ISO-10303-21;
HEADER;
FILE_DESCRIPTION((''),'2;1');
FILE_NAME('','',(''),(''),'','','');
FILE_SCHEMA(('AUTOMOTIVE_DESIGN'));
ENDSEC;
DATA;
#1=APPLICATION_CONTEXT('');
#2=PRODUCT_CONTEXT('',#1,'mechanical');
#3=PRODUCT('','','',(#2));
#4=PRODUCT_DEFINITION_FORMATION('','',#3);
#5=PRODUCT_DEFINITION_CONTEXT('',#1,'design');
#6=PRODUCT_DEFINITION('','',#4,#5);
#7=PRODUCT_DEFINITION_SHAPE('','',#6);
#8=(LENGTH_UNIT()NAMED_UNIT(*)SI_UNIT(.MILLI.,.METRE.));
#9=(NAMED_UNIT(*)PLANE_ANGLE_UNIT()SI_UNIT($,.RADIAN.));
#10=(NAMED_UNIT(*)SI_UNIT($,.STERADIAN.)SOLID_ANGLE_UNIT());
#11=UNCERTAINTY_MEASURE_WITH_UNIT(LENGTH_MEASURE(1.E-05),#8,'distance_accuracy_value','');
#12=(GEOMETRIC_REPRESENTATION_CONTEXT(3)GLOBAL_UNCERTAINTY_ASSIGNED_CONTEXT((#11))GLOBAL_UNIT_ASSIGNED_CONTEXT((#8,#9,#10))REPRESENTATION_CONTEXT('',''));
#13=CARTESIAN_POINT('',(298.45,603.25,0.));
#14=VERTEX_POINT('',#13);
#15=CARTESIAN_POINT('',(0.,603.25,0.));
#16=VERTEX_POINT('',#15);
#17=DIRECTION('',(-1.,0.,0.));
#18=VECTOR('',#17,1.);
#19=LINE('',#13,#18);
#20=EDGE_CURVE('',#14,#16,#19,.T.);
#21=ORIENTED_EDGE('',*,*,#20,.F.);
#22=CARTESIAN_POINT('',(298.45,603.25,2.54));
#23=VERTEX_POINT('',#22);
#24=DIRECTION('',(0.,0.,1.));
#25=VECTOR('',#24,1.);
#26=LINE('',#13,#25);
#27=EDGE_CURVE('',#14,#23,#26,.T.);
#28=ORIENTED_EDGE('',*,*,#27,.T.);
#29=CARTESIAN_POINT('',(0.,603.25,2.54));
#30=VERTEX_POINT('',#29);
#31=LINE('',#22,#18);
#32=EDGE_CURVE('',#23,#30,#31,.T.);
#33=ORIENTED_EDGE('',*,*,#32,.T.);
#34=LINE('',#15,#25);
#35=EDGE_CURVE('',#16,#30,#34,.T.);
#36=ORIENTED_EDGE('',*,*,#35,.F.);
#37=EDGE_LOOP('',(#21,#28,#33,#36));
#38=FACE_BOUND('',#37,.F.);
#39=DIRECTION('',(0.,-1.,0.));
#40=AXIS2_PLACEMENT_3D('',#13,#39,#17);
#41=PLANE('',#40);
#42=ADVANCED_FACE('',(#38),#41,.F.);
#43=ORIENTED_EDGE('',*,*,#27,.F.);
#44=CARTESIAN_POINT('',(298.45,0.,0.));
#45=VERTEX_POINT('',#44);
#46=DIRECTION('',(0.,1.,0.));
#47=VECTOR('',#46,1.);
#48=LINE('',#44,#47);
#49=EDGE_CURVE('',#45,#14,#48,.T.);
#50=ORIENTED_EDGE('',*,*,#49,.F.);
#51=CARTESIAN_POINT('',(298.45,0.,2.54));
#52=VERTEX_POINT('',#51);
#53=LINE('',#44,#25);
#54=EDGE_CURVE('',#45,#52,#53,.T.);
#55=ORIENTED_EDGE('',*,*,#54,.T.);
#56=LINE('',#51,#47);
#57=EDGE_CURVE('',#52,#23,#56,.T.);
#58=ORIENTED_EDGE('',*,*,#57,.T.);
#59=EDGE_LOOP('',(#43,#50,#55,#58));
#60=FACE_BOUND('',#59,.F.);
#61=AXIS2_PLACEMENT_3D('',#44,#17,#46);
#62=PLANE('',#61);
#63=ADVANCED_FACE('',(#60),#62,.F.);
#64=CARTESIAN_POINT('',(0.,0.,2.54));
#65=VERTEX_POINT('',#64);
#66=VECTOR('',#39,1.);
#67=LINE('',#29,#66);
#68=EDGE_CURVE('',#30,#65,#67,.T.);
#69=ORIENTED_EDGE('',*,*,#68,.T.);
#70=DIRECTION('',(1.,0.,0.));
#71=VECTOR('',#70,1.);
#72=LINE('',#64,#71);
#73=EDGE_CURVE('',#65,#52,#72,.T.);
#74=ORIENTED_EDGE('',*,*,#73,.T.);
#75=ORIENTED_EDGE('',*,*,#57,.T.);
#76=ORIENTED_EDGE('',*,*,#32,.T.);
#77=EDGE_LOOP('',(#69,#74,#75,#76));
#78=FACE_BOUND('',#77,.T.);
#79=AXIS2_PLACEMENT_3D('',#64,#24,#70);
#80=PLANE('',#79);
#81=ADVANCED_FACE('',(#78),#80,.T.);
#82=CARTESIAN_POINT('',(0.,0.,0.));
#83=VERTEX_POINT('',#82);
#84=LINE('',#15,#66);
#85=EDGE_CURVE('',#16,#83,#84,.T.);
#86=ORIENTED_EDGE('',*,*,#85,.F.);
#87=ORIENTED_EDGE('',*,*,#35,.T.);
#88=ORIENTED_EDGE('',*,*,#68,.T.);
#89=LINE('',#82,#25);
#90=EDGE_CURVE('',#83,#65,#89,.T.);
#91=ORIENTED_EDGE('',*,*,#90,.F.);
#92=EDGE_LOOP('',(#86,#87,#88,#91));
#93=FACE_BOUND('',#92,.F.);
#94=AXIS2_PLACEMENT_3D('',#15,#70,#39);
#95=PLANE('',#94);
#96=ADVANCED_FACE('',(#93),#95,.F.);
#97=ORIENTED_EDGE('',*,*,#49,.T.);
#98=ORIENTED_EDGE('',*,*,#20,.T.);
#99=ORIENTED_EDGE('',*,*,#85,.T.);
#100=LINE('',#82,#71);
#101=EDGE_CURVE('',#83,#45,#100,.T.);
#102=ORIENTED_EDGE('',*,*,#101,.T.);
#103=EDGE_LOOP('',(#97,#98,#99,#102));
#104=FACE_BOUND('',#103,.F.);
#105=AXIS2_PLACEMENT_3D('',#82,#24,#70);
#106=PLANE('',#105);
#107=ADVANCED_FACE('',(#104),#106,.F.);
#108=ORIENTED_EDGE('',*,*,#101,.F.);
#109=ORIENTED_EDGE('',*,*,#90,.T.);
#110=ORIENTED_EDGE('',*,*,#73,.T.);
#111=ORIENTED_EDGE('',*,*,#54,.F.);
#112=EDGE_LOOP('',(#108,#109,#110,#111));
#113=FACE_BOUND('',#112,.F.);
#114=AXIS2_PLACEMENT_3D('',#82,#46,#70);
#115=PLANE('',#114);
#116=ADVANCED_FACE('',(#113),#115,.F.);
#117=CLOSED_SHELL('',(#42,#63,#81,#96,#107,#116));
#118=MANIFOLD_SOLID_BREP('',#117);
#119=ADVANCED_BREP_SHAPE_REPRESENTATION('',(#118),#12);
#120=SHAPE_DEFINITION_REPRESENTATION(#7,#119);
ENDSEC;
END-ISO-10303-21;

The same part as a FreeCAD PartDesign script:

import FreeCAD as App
import Part
import Sketcher
Q = App.Units.Quantity


def add_polygon(sketch, points):
    """Adds a closed chain of lines whose ends are joined by coincident constraints."""
    first, n = sketch.GeometryCount, len(points)
    for a, b in zip(points, points[1:] + points[:1]):
        sketch.addGeometry(Part.LineSegment(App.Vector(*a, 0), App.Vector(*b, 0)), False)
    for i in range(n):
        sketch.addConstraint(Sketcher.Constraint("Coincident", first + i, 2, first + (i + 1) % n, 1))

doc = App.newDocument("Part")
body = doc.addObject("PartDesign::Body", "Body")

sketch1 = doc.addObject("Sketcher::SketchObject", "Sketch")
body.addObject(sketch1)
sketch1.AttachmentSupport = (doc.XY_Plane, [""])
sketch1.MapMode = "FlatFace"
add_polygon(sketch1, [(0, 603), (0, 0), (298, 0), (298, 603)])
sketch1.addConstraint(Sketcher.Constraint("Vertical", 0))
sketch1.addConstraint(Sketcher.Constraint("Horizontal", 1))
sketch1.addConstraint(Sketcher.Constraint("Vertical", 2))
sketch1.addConstraint(Sketcher.Constraint("Horizontal", 3))
sketch1.addConstraint(Sketcher.Constraint("Coincident", 0, 2, -1, 1))
sketch1.addConstraint(Sketcher.Constraint("DistanceX", 1, 1, 1, 2, Q("11.75 in")))
sketch1.addConstraint(Sketcher.Constraint("DistanceY", 0, 2, 0, 1, Q("23.75 in")))
pad1 = doc.addObject("PartDesign::Pad", "Pad")
body.addObject(pad1)
pad1.Profile = sketch1
pad1.Length = Q("0.1 in")

doc.recompute()
